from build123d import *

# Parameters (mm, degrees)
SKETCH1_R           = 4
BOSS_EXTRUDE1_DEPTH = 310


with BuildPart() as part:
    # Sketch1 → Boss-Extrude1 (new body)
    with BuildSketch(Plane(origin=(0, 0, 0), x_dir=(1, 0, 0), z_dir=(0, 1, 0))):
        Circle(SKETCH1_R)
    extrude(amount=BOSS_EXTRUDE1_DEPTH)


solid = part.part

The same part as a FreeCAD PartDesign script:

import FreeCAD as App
import Part
import Sketcher
from FreeCAD import Vector

doc = App.newDocument("Part")
params = doc.addObject("Spreadsheet::Sheet", "Params")
for row, (alias, value) in enumerate([
    ("sketch1_diameter", "8 mm"),
    ("pad1_length", "310 mm"),
], start=1):
    params.set(f"A{row}", alias)
    params.set(f"B{row}", "=" + value)
    params.setAlias(f"B{row}", alias)

body = doc.addObject("PartDesign::Body", "Body")

# Sketch on XZ plane
sketch1 = body.newObject("Sketcher::SketchObject", "Sketch")
sketch1.AttachmentSupport = (doc.getObject("XZ_Plane"), [""])
sketch1.MapMode = "FlatFace"
sketch1.addGeometry(Part.Circle(Vector(0, 0, 0), Vector(0, 0, 1), 4), False)
sketch1.addConstraint([
    Sketcher.Constraint("Coincident", 0, 3, -1, 1),
    Sketcher.Constraint("Diameter", 0, 8.0),
])
sketch1.setExpression("Constraints[1]", "Params.sketch1_diameter")
pad1 = body.newObject("PartDesign::Pad", "Pad")
pad1.Profile = sketch1
pad1.setExpression("Length", "Params.pad1_length")
pad1.Reversed = True

doc.recompute()
